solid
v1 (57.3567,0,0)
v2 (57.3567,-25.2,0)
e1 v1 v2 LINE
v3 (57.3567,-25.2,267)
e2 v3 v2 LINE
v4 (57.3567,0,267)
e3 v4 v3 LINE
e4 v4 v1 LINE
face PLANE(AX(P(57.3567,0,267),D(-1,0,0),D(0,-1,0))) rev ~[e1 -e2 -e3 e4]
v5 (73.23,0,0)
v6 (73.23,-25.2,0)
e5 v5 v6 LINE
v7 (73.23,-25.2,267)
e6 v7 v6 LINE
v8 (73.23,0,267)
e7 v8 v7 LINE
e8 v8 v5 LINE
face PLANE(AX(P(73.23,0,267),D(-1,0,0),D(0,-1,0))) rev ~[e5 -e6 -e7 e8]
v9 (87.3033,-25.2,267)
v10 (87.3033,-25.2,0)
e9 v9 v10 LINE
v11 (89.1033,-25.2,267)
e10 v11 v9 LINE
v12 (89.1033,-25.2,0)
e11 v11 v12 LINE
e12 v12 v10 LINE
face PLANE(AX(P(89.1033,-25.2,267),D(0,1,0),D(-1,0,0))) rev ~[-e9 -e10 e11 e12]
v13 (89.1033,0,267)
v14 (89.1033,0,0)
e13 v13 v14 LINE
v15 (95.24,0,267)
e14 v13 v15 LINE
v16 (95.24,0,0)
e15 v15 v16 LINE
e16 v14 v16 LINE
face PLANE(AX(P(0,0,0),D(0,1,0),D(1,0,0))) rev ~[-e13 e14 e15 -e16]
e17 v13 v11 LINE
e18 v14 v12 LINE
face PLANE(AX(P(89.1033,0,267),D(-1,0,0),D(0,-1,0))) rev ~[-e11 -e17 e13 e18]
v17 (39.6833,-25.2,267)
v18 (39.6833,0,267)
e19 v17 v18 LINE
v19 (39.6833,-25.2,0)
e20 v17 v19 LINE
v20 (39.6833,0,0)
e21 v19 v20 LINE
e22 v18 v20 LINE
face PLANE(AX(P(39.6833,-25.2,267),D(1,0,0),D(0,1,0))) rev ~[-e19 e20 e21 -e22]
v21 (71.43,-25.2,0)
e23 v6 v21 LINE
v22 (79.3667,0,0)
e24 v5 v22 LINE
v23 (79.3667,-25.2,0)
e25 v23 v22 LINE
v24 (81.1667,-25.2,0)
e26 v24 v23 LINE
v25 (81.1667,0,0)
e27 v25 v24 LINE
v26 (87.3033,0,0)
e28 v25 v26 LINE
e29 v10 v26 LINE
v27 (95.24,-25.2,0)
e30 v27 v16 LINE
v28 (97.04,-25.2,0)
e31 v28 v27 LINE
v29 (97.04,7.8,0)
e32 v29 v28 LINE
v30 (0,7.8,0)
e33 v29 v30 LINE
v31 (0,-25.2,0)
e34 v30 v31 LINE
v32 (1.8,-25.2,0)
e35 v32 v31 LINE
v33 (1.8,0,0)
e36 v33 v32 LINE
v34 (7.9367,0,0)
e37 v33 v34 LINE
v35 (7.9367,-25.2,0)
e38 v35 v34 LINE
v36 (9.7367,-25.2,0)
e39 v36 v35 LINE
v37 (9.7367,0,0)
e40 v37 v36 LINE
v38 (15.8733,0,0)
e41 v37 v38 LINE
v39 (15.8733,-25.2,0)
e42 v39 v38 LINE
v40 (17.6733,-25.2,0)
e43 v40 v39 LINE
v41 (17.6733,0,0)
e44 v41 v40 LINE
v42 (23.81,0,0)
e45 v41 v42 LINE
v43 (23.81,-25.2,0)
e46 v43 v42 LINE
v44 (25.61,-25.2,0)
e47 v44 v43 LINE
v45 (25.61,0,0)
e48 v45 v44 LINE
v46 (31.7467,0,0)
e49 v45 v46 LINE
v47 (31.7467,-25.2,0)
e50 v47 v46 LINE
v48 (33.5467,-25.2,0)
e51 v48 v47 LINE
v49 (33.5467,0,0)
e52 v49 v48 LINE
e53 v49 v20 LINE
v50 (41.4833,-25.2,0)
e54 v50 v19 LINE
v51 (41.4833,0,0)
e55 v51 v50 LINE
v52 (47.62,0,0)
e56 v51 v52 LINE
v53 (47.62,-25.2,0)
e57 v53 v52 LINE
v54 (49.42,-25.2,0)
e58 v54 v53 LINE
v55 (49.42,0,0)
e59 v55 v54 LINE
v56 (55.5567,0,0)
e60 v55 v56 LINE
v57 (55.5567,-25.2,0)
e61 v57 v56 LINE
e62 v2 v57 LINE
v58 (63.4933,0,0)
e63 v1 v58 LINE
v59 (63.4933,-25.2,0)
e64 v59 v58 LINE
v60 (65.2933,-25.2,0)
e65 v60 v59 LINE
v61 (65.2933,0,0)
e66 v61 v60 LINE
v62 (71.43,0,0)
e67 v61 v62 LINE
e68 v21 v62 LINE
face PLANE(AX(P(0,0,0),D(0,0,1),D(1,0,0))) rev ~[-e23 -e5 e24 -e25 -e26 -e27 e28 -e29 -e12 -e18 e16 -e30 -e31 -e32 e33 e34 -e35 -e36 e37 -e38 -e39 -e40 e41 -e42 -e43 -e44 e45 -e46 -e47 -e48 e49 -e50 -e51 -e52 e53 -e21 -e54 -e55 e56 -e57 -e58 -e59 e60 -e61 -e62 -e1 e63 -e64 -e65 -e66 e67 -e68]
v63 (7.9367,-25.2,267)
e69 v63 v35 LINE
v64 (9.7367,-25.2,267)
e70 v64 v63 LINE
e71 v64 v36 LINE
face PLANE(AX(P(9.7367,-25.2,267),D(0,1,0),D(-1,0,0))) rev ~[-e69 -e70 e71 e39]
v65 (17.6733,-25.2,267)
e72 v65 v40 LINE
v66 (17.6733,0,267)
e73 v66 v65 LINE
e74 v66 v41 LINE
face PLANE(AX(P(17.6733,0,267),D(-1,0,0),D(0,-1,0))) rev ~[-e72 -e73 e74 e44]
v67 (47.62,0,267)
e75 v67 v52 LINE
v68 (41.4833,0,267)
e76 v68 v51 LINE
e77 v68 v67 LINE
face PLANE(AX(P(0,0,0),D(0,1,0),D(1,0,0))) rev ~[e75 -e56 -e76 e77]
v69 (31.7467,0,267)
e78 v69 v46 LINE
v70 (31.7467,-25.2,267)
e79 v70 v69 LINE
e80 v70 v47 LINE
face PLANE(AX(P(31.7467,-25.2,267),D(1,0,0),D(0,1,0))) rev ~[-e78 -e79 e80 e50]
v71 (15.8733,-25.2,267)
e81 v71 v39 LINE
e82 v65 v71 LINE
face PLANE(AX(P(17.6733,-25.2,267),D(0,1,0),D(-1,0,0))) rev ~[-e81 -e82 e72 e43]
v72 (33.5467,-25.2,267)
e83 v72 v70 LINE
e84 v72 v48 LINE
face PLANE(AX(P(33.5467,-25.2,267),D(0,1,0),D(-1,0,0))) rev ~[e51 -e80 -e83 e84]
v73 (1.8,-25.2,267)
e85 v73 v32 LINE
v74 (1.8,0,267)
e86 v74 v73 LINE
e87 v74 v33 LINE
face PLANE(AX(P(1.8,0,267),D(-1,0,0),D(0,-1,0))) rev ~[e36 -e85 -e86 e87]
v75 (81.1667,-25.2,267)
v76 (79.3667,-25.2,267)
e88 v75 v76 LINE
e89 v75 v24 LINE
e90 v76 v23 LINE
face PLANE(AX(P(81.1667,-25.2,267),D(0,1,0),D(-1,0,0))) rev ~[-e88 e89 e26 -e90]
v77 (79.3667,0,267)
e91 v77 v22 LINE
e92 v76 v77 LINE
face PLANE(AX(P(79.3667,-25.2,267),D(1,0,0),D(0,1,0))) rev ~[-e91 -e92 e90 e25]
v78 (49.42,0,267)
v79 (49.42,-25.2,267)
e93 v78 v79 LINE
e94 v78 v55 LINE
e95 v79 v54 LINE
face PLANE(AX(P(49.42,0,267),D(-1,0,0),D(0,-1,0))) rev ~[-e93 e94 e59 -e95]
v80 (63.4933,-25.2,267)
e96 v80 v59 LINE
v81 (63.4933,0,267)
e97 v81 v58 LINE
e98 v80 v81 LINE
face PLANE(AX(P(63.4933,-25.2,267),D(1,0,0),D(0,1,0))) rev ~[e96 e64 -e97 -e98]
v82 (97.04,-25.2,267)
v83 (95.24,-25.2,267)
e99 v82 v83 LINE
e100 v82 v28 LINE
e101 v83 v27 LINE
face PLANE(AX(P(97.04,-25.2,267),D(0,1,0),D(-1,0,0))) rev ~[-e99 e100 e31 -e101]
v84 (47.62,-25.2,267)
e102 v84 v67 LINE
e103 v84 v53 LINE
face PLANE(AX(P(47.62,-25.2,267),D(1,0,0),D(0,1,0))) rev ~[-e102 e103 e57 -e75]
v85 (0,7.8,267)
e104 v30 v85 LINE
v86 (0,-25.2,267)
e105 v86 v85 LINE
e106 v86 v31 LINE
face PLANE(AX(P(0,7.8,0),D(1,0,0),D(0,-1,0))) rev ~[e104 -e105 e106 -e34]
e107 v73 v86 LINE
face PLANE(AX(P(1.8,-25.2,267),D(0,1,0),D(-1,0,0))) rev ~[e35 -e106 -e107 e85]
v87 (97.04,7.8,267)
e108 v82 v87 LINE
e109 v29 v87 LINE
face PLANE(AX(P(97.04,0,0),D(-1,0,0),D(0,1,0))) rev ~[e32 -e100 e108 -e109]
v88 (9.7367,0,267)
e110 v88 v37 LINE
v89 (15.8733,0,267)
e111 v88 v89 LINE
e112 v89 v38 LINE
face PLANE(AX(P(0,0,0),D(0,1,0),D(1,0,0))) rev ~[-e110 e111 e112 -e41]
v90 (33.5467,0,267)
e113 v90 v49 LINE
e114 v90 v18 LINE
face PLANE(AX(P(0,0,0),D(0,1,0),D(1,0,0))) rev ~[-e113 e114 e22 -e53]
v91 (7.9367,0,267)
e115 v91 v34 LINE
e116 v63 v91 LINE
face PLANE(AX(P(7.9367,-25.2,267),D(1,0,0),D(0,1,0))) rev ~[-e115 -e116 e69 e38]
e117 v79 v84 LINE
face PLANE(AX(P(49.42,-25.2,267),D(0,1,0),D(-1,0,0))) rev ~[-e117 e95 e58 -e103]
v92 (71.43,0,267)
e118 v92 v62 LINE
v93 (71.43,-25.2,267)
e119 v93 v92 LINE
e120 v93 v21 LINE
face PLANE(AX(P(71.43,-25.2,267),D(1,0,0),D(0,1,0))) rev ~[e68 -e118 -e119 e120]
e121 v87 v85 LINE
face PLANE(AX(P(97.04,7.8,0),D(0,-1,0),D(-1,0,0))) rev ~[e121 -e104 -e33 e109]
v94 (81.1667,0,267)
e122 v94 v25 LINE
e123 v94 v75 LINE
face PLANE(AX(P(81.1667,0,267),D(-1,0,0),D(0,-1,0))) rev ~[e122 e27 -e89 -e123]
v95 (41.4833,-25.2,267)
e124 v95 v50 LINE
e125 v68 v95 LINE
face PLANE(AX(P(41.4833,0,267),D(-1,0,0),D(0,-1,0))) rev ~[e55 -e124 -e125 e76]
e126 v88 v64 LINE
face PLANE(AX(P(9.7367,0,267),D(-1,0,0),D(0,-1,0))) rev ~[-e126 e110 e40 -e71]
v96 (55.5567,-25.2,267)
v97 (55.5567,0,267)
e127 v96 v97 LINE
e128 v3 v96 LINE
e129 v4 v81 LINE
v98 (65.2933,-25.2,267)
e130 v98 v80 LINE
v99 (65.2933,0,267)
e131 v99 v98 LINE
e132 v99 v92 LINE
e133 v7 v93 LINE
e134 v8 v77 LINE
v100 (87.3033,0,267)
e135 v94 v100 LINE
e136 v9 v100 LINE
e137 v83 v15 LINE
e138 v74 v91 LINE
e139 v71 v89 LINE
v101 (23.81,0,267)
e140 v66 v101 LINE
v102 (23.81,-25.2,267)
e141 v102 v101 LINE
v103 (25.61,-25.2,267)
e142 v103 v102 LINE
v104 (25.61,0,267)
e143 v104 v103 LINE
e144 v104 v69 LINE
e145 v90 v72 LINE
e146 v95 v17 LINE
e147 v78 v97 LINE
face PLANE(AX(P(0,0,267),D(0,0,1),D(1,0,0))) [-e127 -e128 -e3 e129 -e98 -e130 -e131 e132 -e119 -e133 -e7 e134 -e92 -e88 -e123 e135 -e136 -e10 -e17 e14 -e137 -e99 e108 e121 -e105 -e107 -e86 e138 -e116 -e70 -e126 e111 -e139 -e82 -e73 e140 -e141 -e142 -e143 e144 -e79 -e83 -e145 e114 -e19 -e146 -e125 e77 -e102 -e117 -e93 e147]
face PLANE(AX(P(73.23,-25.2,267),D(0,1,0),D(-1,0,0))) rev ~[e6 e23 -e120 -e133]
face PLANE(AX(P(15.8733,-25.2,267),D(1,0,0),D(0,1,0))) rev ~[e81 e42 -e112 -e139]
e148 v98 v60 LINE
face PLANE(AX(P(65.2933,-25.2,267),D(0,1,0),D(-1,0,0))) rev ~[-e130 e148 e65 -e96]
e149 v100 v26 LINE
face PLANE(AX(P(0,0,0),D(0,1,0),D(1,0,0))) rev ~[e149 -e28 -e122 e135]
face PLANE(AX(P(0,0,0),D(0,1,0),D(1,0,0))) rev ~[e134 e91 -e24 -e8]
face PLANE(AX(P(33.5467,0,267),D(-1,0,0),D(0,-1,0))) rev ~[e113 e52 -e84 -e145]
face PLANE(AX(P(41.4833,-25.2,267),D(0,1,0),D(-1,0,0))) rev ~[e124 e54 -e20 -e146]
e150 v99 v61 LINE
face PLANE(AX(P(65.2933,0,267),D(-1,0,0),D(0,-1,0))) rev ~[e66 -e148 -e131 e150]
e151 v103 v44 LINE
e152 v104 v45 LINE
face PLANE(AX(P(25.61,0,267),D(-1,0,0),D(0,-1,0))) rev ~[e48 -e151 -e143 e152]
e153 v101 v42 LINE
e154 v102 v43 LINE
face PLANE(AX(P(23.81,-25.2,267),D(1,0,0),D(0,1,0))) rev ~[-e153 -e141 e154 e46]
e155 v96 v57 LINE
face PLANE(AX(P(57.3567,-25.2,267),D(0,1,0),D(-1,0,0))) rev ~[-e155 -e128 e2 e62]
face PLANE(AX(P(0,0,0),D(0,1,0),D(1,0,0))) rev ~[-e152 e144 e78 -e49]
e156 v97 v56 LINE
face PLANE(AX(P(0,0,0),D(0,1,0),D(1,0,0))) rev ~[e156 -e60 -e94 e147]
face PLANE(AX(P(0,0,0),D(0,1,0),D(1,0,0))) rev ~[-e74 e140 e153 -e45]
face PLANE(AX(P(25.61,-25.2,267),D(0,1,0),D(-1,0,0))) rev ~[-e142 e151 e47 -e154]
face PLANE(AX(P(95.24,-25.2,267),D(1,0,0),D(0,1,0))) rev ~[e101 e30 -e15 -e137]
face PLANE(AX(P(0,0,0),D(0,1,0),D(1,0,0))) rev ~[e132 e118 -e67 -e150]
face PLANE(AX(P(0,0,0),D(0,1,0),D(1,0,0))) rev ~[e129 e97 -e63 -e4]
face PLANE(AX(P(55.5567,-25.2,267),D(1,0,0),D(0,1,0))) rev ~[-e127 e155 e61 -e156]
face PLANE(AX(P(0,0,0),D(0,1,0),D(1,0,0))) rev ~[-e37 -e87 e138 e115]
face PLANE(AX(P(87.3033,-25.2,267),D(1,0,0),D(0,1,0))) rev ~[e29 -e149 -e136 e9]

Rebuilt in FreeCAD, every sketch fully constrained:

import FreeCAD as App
import Part
import Sketcher
Q = App.Units.Quantity

doc = App.newDocument("Part")
body = doc.addObject("PartDesign::Body", "Body")

# Sketch on XY plane
sketch1 = body.newObject("Sketcher::SketchObject", "Sketch")
sketch1.AttachmentSupport = (doc.getObject("XY_Plane"), [""])
sketch1.MapMode = "FlatFace"
sketch1.addGeometry([
    Part.LineSegment(App.Vector(0, 7.8, 0), App.Vector(0, 0, 0)),
    Part.LineSegment(App.Vector(0, 0, 0), App.Vector(97.04, 0, 0)),
    Part.LineSegment(App.Vector(97.04, 0, 0), App.Vector(97.04, 7.8, 0)),
    Part.LineSegment(App.Vector(97.04, 7.8, 0), App.Vector(0, 7.8, 0)),
], False)
sketch1.addConstraint([
    Sketcher.Constraint("Coincident", 0, 2, 1, 1),
    Sketcher.Constraint("Coincident", 1, 2, 2, 1),
    Sketcher.Constraint("Coincident", 2, 2, 3, 1),
    Sketcher.Constraint("Coincident", 3, 2, 0, 1),
    Sketcher.Constraint("Vertical", 0),
    Sketcher.Constraint("Horizontal", 1),
    Sketcher.Constraint("Vertical", 2),
    Sketcher.Constraint("Horizontal", 3),
    Sketcher.Constraint("Coincident", 0, 2, -1, 1),
    Sketcher.Constraint("DistanceY", 0, 2, 0, 1, Q("7.8 mm")),
    Sketcher.Constraint("DistanceX", 1, 1, 1, 2, Q("97.04 mm")),
])
pad1 = body.newObject("PartDesign::Pad", "Pad")
pad1.Profile = sketch1
pad1.Length = 267

# Sketch on XY plane
sketch2 = body.newObject("Sketcher::SketchObject", "Sketch001")
sketch2.AttachmentSupport = (doc.getObject("XY_Plane"), [""])
sketch2.MapMode = "FlatFace"
sketch2.AttachmentOffset = App.Placement(App.Vector(0, 0, 267), App.Rotation())
sketch2.addGeometry([
    Part.LineSegment(App.Vector(97.04, 0, 0), App.Vector(95.24, 0, 0)),  # 0
    Part.LineSegment(App.Vector(95.24, 0, 0), App.Vector(95.24, -25.2, 0)),  # 1
    Part.LineSegment(App.Vector(95.24, -25.2, 0), App.Vector(97.04, -25.2, 0)),  # 2
    Part.LineSegment(App.Vector(97.04, -25.2, 0), App.Vector(97.04, 0, 0)),  # 3
    Part.LineSegment(App.Vector(89.1033, 0, 0), App.Vector(87.3033, 0, 0)),  # 4
    Part.LineSegment(App.Vector(87.3033, 0, 0), App.Vector(87.3033, -25.2, 0)),  # 5
    Part.LineSegment(App.Vector(87.3033, -25.2, 0), App.Vector(89.1033, -25.2, 0)),  # 6
    Part.LineSegment(App.Vector(89.1033, -25.2, 0), App.Vector(89.1033, 0, 0)),  # 7
    Part.LineSegment(App.Vector(81.1667, 0, 0), App.Vector(79.3667, 0, 0)),  # 8
    Part.LineSegment(App.Vector(79.3667, 0, 0), App.Vector(79.3667, -25.2, 0)),  # 9
    Part.LineSegment(App.Vector(79.3667, -25.2, 0), App.Vector(81.1667, -25.2, 0)),  # 10
    Part.LineSegment(App.Vector(81.1667, -25.2, 0), App.Vector(81.1667, 0, 0)),  # 11
    Part.LineSegment(App.Vector(73.23, 0, 0), App.Vector(71.43, 0, 0)),  # 12
    Part.LineSegment(App.Vector(71.43, 0, 0), App.Vector(71.43, -25.2, 0)),  # 13
    Part.LineSegment(App.Vector(71.43, -25.2, 0), App.Vector(73.23, -25.2, 0)),  # 14
    Part.LineSegment(App.Vector(73.23, -25.2, 0), App.Vector(73.23, 0, 0)),  # 15
    Part.LineSegment(App.Vector(65.2933, 0, 0), App.Vector(63.4933, 0, 0)),  # 16
    Part.LineSegment(App.Vector(63.4933, 0, 0), App.Vector(63.4933, -25.2, 0)),  # 17
    Part.LineSegment(App.Vector(63.4933, -25.2, 0), App.Vector(65.2933, -25.2, 0)),  # 18
    Part.LineSegment(App.Vector(65.2933, -25.2, 0), App.Vector(65.2933, 0, 0)),  # 19
    Part.LineSegment(App.Vector(57.3567, 0, 0), App.Vector(55.5567, 0, 0)),  # 20
    Part.LineSegment(App.Vector(55.5567, 0, 0), App.Vector(55.5567, -25.2, 0)),  # 21
    Part.LineSegment(App.Vector(55.5567, -25.2, 0), App.Vector(57.3567, -25.2, 0)),  # 22
    Part.LineSegment(App.Vector(57.3567, -25.2, 0), App.Vector(57.3567, 0, 0)),  # 23
    Part.LineSegment(App.Vector(49.42, 0, 0), App.Vector(47.62, 0, 0)),  # 24
    Part.LineSegment(App.Vector(47.62, 0, 0), App.Vector(47.62, -25.2, 0)),  # 25
    Part.LineSegment(App.Vector(47.62, -25.2, 0), App.Vector(49.42, -25.2, 0)),  # 26
    Part.LineSegment(App.Vector(49.42, -25.2, 0), App.Vector(49.42, 0, 0)),  # 27
    Part.LineSegment(App.Vector(41.4833, 0, 0), App.Vector(39.6833, 0, 0)),  # 28
    Part.LineSegment(App.Vector(39.6833, 0, 0), App.Vector(39.6833, -25.2, 0)),  # 29
    Part.LineSegment(App.Vector(39.6833, -25.2, 0), App.Vector(41.4833, -25.2, 0)),  # 30
    Part.LineSegment(App.Vector(41.4833, -25.2, 0), App.Vector(41.4833, 0, 0)),  # 31
    Part.LineSegment(App.Vector(33.5467, 0, 0), App.Vector(31.7467, 0, 0)),  # 32
    Part.LineSegment(App.Vector(31.7467, 0, 0), App.Vector(31.7467, -25.2, 0)),  # 33
    Part.LineSegment(App.Vector(31.7467, -25.2, 0), App.Vector(33.5467, -25.2, 0)),  # 34
    Part.LineSegment(App.Vector(33.5467, -25.2, 0), App.Vector(33.5467, 0, 0)),  # 35
    Part.LineSegment(App.Vector(25.61, 0, 0), App.Vector(23.81, 0, 0)),  # 36
    Part.LineSegment(App.Vector(23.81, 0, 0), App.Vector(23.81, -25.2, 0)),  # 37
    Part.LineSegment(App.Vector(23.81, -25.2, 0), App.Vector(25.61, -25.2, 0)),  # 38
    Part.LineSegment(App.Vector(25.61, -25.2, 0), App.Vector(25.61, 0, 0)),  # 39
    Part.LineSegment(App.Vector(17.6733, 0, 0), App.Vector(15.8733, 0, 0)),  # 40
    Part.LineSegment(App.Vector(15.8733, 0, 0), App.Vector(15.8733, -25.2, 0)),  # 41
    Part.LineSegment(App.Vector(15.8733, -25.2, 0), App.Vector(17.6733, -25.2, 0)),  # 42
    Part.LineSegment(App.Vector(17.6733, -25.2, 0), App.Vector(17.6733, 0, 0)),  # 43
    Part.LineSegment(App.Vector(9.7367, 0, 0), App.Vector(7.9367, 0, 0)),  # 44
    Part.LineSegment(App.Vector(7.9367, 0, 0), App.Vector(7.9367, -25.2, 0)),  # 45
    Part.LineSegment(App.Vector(7.9367, -25.2, 0), App.Vector(9.7367, -25.2, 0)),  # 46
    Part.LineSegment(App.Vector(9.7367, -25.2, 0), App.Vector(9.7367, 0, 0)),  # 47
    Part.LineSegment(App.Vector(1.8, 0, 0), App.Vector(0, 0, 0)),  # 48
    Part.LineSegment(App.Vector(0, 0, 0), App.Vector(0, -25.2, 0)),  # 49
    Part.LineSegment(App.Vector(0, -25.2, 0), App.Vector(1.8, -25.2, 0)),  # 50
    Part.LineSegment(App.Vector(1.8, -25.2, 0), App.Vector(1.8, 0, 0)),  # 51
], False)
sketch2.addConstraint([
    Sketcher.Constraint("Coincident", 0, 2, 1, 1),
    Sketcher.Constraint("Coincident", 1, 2, 2, 1),
    Sketcher.Constraint("Coincident", 2, 2, 3, 1),
    Sketcher.Constraint("Coincident", 3, 2, 0, 1),
    Sketcher.Constraint("Coincident", 4, 2, 5, 1),
    Sketcher.Constraint("Coincident", 5, 2, 6, 1),
    Sketcher.Constraint("Coincident", 6, 2, 7, 1),
    Sketcher.Constraint("Coincident", 7, 2, 4, 1),
    Sketcher.Constraint("Coincident", 8, 2, 9, 1),
    Sketcher.Constraint("Coincident", 9, 2, 10, 1),
    Sketcher.Constraint("Coincident", 10, 2, 11, 1),
    Sketcher.Constraint("Coincident", 11, 2, 8, 1),
    Sketcher.Constraint("Coincident", 12, 2, 13, 1),
    Sketcher.Constraint("Coincident", 13, 2, 14, 1),
    Sketcher.Constraint("Coincident", 14, 2, 15, 1),
    Sketcher.Constraint("Coincident", 15, 2, 12, 1),
    Sketcher.Constraint("Coincident", 16, 2, 17, 1),
    Sketcher.Constraint("Coincident", 17, 2, 18, 1),
    Sketcher.Constraint("Coincident", 18, 2, 19, 1),
    Sketcher.Constraint("Coincident", 19, 2, 16, 1),
    Sketcher.Constraint("Coincident", 20, 2, 21, 1),
    Sketcher.Constraint("Coincident", 21, 2, 22, 1),
    Sketcher.Constraint("Coincident", 22, 2, 23, 1),
    Sketcher.Constraint("Coincident", 23, 2, 20, 1),
    Sketcher.Constraint("Coincident", 24, 2, 25, 1),
    Sketcher.Constraint("Coincident", 25, 2, 26, 1),
    Sketcher.Constraint("Coincident", 26, 2, 27, 1),
    Sketcher.Constraint("Coincident", 27, 2, 24, 1),
    Sketcher.Constraint("Coincident", 28, 2, 29, 1),
    Sketcher.Constraint("Coincident", 29, 2, 30, 1),
    Sketcher.Constraint("Coincident", 30, 2, 31, 1),
    Sketcher.Constraint("Coincident", 31, 2, 28, 1),
    Sketcher.Constraint("Coincident", 32, 2, 33, 1),
    Sketcher.Constraint("Coincident", 33, 2, 34, 1),
    Sketcher.Constraint("Coincident", 34, 2, 35, 1),
    Sketcher.Constraint("Coincident", 35, 2, 32, 1),
    Sketcher.Constraint("Coincident", 36, 2, 37, 1),
    Sketcher.Constraint("Coincident", 37, 2, 38, 1),
    Sketcher.Constraint("Coincident", 38, 2, 39, 1),
    Sketcher.Constraint("Coincident", 39, 2, 36, 1),
    Sketcher.Constraint("Coincident", 40, 2, 41, 1),
    Sketcher.Constraint("Coincident", 41, 2, 42, 1),
    Sketcher.Constraint("Coincident", 42, 2, 43, 1),
    Sketcher.Constraint("Coincident", 43, 2, 40, 1),
    Sketcher.Constraint("Coincident", 44, 2, 45, 1),
    Sketcher.Constraint("Coincident", 45, 2, 46, 1),
    Sketcher.Constraint("Coincident", 46, 2, 47, 1),
    Sketcher.Constraint("Coincident", 47, 2, 44, 1),
    Sketcher.Constraint("Coincident", 48, 2, 49, 1),
    Sketcher.Constraint("Coincident", 49, 2, 50, 1),
    Sketcher.Constraint("Coincident", 50, 2, 51, 1),
    Sketcher.Constraint("Coincident", 51, 2, 48, 1),
    Sketcher.Constraint("Horizontal", 0),
    Sketcher.Constraint("Vertical", 1),
    Sketcher.Constraint("Horizontal", 2),
    Sketcher.Constraint("Vertical", 3),
    Sketcher.Constraint("Horizontal", 4),
    Sketcher.Constraint("Vertical", 5),
    Sketcher.Constraint("Horizontal", 6),
    Sketcher.Constraint("Vertical", 7),
    Sketcher.Constraint("Horizontal", 8),
    Sketcher.Constraint("Vertical", 9),
    Sketcher.Constraint("Horizontal", 10),
    Sketcher.Constraint("Vertical", 11),
    Sketcher.Constraint("Horizontal", 12),
    Sketcher.Constraint("Vertical", 13),
    Sketcher.Constraint("Horizontal", 14),
    Sketcher.Constraint("Vertical", 15),
    Sketcher.Constraint("Horizontal", 16),
    Sketcher.Constraint("Vertical", 17),
    Sketcher.Constraint("Horizontal", 18),
    Sketcher.Constraint("Vertical", 19),
    Sketcher.Constraint("Horizontal", 20),
    Sketcher.Constraint("Vertical", 21),
    Sketcher.Constraint("Horizontal", 22),
    Sketcher.Constraint("Vertical", 23),
    Sketcher.Constraint("Horizontal", 24),
    Sketcher.Constraint("Vertical", 25),
    Sketcher.Constraint("Horizontal", 26),
    Sketcher.Constraint("Vertical", 27),
    Sketcher.Constraint("Horizontal", 28),
    Sketcher.Constraint("Vertical", 29),
    Sketcher.Constraint("Horizontal", 30),
    Sketcher.Constraint("Vertical", 31),
    Sketcher.Constraint("Horizontal", 32),
    Sketcher.Constraint("Vertical", 33),
    Sketcher.Constraint("Horizontal", 34),
    Sketcher.Constraint("Vertical", 35),
    Sketcher.Constraint("Horizontal", 36),
    Sketcher.Constraint("Vertical", 37),
    Sketcher.Constraint("Horizontal", 38),
    Sketcher.Constraint("Vertical", 39),
    Sketcher.Constraint("Horizontal", 40),
    Sketcher.Constraint("Vertical", 41),
    Sketcher.Constraint("Horizontal", 42),
    Sketcher.Constraint("Vertical", 43),
    Sketcher.Constraint("Horizontal", 44),
    Sketcher.Constraint("Vertical", 45),
    Sketcher.Constraint("Horizontal", 46),
    Sketcher.Constraint("Vertical", 47),
    Sketcher.Constraint("Horizontal", 48),
    Sketcher.Constraint("Vertical", 49),
    Sketcher.Constraint("Horizontal", 50),
    Sketcher.Constraint("Vertical", 51),
    Sketcher.Constraint("Coincident", 48, 2, -1, 1),
    Sketcher.Constraint("PointOnObject", 0, 2, -1),
    Sketcher.Constraint("PointOnObject", 4, 2, -1),
    Sketcher.Constraint("PointOnObject", 8, 2, -1),
    Sketcher.Constraint("PointOnObject", 12, 2, -1),
    Sketcher.Constraint("PointOnObject", 16, 2, -1),
    Sketcher.Constraint("PointOnObject", 20, 2, -1),
    Sketcher.Constraint("PointOnObject", 24, 2, -1),
    Sketcher.Constraint("PointOnObject", 28, 2, -1),
    Sketcher.Constraint("PointOnObject", 32, 2, -1),
    Sketcher.Constraint("PointOnObject", 36, 2, -1),
    Sketcher.Constraint("PointOnObject", 40, 2, -1),
    Sketcher.Constraint("PointOnObject", 44, 2, -1),
    Sketcher.Constraint("Horizontal", 2, 2, 5, 2),
    Sketcher.Constraint("Horizontal", 6, 2, 9, 2),
    Sketcher.Constraint("Horizontal", 10, 2, 13, 2),
    Sketcher.Constraint("Horizontal", 14, 2, 17, 2),
    Sketcher.Constraint("Horizontal", 18, 2, 21, 2),
    Sketcher.Constraint("Horizontal", 22, 2, 25, 2),
    Sketcher.Constraint("Horizontal", 26, 2, 29, 2),
    Sketcher.Constraint("Horizontal", 30, 2, 33, 2),
    Sketcher.Constraint("Horizontal", 34, 2, 37, 2),
    Sketcher.Constraint("Horizontal", 38, 2, 41, 2),
    Sketcher.Constraint("Horizontal", 42, 2, 45, 2),
    Sketcher.Constraint("Horizontal", 46, 2, 49, 2),
    Sketcher.Constraint("Equal", 2, 4),
    Sketcher.Constraint("Equal", 6, 8),
    Sketcher.Constraint("Equal", 10, 12),
    Sketcher.Constraint("Equal", 14, 16),
    Sketcher.Constraint("Equal", 18, 20),
    Sketcher.Constraint("Equal", 22, 24),
    Sketcher.Constraint("Equal", 26, 28),
    Sketcher.Constraint("Equal", 30, 32),
    Sketcher.Constraint("Equal", 34, 36),
    Sketcher.Constraint("Equal", 38, 40),
    Sketcher.Constraint("Equal", 42, 44),
    Sketcher.Constraint("Equal", 46, 48),
    Sketcher.Constraint("DistanceX", 0, 2, 0, 1, Q("1.8 mm")),
    Sketcher.Constraint("DistanceY", 1, 2, 1, 1, Q("25.2 mm")),
    Sketcher.Constraint("DistanceX", -1, 1, 44, 2, Q("7.9367 mm")),
    Sketcher.Constraint("DistanceX", 4, 2, 0, 2, Q("7.9367 mm")),
    Sketcher.Constraint("DistanceX", 8, 2, 4, 2, Q("7.9366 mm")),
    Sketcher.Constraint("DistanceX", 12, 2, 8, 2, Q("7.9367 mm")),
    Sketcher.Constraint("DistanceX", 16, 2, 12, 2, Q("7.9367 mm")),
    Sketcher.Constraint("DistanceX", 20, 2, 16, 2, Q("7.9366 mm")),
    Sketcher.Constraint("DistanceX", 24, 2, 20, 2, Q("7.9367 mm")),
    Sketcher.Constraint("DistanceX", 28, 2, 24, 2, Q("7.9367 mm")),
    Sketcher.Constraint("DistanceX", 32, 2, 28, 2, Q("7.9366 mm")),
    Sketcher.Constraint("DistanceX", 36, 2, 32, 2, Q("7.9367 mm")),
    Sketcher.Constraint("DistanceX", 40, 2, 36, 2, Q("7.9367 mm")),
    Sketcher.Constraint("DistanceX", 44, 2, 40, 2, Q("7.9366 mm")),
])
pad2 = body.newObject("PartDesign::Pad", "Pad001")
pad2.Profile = sketch2
pad2.Length = 267
pad2.Reversed = True

doc.recompute()
